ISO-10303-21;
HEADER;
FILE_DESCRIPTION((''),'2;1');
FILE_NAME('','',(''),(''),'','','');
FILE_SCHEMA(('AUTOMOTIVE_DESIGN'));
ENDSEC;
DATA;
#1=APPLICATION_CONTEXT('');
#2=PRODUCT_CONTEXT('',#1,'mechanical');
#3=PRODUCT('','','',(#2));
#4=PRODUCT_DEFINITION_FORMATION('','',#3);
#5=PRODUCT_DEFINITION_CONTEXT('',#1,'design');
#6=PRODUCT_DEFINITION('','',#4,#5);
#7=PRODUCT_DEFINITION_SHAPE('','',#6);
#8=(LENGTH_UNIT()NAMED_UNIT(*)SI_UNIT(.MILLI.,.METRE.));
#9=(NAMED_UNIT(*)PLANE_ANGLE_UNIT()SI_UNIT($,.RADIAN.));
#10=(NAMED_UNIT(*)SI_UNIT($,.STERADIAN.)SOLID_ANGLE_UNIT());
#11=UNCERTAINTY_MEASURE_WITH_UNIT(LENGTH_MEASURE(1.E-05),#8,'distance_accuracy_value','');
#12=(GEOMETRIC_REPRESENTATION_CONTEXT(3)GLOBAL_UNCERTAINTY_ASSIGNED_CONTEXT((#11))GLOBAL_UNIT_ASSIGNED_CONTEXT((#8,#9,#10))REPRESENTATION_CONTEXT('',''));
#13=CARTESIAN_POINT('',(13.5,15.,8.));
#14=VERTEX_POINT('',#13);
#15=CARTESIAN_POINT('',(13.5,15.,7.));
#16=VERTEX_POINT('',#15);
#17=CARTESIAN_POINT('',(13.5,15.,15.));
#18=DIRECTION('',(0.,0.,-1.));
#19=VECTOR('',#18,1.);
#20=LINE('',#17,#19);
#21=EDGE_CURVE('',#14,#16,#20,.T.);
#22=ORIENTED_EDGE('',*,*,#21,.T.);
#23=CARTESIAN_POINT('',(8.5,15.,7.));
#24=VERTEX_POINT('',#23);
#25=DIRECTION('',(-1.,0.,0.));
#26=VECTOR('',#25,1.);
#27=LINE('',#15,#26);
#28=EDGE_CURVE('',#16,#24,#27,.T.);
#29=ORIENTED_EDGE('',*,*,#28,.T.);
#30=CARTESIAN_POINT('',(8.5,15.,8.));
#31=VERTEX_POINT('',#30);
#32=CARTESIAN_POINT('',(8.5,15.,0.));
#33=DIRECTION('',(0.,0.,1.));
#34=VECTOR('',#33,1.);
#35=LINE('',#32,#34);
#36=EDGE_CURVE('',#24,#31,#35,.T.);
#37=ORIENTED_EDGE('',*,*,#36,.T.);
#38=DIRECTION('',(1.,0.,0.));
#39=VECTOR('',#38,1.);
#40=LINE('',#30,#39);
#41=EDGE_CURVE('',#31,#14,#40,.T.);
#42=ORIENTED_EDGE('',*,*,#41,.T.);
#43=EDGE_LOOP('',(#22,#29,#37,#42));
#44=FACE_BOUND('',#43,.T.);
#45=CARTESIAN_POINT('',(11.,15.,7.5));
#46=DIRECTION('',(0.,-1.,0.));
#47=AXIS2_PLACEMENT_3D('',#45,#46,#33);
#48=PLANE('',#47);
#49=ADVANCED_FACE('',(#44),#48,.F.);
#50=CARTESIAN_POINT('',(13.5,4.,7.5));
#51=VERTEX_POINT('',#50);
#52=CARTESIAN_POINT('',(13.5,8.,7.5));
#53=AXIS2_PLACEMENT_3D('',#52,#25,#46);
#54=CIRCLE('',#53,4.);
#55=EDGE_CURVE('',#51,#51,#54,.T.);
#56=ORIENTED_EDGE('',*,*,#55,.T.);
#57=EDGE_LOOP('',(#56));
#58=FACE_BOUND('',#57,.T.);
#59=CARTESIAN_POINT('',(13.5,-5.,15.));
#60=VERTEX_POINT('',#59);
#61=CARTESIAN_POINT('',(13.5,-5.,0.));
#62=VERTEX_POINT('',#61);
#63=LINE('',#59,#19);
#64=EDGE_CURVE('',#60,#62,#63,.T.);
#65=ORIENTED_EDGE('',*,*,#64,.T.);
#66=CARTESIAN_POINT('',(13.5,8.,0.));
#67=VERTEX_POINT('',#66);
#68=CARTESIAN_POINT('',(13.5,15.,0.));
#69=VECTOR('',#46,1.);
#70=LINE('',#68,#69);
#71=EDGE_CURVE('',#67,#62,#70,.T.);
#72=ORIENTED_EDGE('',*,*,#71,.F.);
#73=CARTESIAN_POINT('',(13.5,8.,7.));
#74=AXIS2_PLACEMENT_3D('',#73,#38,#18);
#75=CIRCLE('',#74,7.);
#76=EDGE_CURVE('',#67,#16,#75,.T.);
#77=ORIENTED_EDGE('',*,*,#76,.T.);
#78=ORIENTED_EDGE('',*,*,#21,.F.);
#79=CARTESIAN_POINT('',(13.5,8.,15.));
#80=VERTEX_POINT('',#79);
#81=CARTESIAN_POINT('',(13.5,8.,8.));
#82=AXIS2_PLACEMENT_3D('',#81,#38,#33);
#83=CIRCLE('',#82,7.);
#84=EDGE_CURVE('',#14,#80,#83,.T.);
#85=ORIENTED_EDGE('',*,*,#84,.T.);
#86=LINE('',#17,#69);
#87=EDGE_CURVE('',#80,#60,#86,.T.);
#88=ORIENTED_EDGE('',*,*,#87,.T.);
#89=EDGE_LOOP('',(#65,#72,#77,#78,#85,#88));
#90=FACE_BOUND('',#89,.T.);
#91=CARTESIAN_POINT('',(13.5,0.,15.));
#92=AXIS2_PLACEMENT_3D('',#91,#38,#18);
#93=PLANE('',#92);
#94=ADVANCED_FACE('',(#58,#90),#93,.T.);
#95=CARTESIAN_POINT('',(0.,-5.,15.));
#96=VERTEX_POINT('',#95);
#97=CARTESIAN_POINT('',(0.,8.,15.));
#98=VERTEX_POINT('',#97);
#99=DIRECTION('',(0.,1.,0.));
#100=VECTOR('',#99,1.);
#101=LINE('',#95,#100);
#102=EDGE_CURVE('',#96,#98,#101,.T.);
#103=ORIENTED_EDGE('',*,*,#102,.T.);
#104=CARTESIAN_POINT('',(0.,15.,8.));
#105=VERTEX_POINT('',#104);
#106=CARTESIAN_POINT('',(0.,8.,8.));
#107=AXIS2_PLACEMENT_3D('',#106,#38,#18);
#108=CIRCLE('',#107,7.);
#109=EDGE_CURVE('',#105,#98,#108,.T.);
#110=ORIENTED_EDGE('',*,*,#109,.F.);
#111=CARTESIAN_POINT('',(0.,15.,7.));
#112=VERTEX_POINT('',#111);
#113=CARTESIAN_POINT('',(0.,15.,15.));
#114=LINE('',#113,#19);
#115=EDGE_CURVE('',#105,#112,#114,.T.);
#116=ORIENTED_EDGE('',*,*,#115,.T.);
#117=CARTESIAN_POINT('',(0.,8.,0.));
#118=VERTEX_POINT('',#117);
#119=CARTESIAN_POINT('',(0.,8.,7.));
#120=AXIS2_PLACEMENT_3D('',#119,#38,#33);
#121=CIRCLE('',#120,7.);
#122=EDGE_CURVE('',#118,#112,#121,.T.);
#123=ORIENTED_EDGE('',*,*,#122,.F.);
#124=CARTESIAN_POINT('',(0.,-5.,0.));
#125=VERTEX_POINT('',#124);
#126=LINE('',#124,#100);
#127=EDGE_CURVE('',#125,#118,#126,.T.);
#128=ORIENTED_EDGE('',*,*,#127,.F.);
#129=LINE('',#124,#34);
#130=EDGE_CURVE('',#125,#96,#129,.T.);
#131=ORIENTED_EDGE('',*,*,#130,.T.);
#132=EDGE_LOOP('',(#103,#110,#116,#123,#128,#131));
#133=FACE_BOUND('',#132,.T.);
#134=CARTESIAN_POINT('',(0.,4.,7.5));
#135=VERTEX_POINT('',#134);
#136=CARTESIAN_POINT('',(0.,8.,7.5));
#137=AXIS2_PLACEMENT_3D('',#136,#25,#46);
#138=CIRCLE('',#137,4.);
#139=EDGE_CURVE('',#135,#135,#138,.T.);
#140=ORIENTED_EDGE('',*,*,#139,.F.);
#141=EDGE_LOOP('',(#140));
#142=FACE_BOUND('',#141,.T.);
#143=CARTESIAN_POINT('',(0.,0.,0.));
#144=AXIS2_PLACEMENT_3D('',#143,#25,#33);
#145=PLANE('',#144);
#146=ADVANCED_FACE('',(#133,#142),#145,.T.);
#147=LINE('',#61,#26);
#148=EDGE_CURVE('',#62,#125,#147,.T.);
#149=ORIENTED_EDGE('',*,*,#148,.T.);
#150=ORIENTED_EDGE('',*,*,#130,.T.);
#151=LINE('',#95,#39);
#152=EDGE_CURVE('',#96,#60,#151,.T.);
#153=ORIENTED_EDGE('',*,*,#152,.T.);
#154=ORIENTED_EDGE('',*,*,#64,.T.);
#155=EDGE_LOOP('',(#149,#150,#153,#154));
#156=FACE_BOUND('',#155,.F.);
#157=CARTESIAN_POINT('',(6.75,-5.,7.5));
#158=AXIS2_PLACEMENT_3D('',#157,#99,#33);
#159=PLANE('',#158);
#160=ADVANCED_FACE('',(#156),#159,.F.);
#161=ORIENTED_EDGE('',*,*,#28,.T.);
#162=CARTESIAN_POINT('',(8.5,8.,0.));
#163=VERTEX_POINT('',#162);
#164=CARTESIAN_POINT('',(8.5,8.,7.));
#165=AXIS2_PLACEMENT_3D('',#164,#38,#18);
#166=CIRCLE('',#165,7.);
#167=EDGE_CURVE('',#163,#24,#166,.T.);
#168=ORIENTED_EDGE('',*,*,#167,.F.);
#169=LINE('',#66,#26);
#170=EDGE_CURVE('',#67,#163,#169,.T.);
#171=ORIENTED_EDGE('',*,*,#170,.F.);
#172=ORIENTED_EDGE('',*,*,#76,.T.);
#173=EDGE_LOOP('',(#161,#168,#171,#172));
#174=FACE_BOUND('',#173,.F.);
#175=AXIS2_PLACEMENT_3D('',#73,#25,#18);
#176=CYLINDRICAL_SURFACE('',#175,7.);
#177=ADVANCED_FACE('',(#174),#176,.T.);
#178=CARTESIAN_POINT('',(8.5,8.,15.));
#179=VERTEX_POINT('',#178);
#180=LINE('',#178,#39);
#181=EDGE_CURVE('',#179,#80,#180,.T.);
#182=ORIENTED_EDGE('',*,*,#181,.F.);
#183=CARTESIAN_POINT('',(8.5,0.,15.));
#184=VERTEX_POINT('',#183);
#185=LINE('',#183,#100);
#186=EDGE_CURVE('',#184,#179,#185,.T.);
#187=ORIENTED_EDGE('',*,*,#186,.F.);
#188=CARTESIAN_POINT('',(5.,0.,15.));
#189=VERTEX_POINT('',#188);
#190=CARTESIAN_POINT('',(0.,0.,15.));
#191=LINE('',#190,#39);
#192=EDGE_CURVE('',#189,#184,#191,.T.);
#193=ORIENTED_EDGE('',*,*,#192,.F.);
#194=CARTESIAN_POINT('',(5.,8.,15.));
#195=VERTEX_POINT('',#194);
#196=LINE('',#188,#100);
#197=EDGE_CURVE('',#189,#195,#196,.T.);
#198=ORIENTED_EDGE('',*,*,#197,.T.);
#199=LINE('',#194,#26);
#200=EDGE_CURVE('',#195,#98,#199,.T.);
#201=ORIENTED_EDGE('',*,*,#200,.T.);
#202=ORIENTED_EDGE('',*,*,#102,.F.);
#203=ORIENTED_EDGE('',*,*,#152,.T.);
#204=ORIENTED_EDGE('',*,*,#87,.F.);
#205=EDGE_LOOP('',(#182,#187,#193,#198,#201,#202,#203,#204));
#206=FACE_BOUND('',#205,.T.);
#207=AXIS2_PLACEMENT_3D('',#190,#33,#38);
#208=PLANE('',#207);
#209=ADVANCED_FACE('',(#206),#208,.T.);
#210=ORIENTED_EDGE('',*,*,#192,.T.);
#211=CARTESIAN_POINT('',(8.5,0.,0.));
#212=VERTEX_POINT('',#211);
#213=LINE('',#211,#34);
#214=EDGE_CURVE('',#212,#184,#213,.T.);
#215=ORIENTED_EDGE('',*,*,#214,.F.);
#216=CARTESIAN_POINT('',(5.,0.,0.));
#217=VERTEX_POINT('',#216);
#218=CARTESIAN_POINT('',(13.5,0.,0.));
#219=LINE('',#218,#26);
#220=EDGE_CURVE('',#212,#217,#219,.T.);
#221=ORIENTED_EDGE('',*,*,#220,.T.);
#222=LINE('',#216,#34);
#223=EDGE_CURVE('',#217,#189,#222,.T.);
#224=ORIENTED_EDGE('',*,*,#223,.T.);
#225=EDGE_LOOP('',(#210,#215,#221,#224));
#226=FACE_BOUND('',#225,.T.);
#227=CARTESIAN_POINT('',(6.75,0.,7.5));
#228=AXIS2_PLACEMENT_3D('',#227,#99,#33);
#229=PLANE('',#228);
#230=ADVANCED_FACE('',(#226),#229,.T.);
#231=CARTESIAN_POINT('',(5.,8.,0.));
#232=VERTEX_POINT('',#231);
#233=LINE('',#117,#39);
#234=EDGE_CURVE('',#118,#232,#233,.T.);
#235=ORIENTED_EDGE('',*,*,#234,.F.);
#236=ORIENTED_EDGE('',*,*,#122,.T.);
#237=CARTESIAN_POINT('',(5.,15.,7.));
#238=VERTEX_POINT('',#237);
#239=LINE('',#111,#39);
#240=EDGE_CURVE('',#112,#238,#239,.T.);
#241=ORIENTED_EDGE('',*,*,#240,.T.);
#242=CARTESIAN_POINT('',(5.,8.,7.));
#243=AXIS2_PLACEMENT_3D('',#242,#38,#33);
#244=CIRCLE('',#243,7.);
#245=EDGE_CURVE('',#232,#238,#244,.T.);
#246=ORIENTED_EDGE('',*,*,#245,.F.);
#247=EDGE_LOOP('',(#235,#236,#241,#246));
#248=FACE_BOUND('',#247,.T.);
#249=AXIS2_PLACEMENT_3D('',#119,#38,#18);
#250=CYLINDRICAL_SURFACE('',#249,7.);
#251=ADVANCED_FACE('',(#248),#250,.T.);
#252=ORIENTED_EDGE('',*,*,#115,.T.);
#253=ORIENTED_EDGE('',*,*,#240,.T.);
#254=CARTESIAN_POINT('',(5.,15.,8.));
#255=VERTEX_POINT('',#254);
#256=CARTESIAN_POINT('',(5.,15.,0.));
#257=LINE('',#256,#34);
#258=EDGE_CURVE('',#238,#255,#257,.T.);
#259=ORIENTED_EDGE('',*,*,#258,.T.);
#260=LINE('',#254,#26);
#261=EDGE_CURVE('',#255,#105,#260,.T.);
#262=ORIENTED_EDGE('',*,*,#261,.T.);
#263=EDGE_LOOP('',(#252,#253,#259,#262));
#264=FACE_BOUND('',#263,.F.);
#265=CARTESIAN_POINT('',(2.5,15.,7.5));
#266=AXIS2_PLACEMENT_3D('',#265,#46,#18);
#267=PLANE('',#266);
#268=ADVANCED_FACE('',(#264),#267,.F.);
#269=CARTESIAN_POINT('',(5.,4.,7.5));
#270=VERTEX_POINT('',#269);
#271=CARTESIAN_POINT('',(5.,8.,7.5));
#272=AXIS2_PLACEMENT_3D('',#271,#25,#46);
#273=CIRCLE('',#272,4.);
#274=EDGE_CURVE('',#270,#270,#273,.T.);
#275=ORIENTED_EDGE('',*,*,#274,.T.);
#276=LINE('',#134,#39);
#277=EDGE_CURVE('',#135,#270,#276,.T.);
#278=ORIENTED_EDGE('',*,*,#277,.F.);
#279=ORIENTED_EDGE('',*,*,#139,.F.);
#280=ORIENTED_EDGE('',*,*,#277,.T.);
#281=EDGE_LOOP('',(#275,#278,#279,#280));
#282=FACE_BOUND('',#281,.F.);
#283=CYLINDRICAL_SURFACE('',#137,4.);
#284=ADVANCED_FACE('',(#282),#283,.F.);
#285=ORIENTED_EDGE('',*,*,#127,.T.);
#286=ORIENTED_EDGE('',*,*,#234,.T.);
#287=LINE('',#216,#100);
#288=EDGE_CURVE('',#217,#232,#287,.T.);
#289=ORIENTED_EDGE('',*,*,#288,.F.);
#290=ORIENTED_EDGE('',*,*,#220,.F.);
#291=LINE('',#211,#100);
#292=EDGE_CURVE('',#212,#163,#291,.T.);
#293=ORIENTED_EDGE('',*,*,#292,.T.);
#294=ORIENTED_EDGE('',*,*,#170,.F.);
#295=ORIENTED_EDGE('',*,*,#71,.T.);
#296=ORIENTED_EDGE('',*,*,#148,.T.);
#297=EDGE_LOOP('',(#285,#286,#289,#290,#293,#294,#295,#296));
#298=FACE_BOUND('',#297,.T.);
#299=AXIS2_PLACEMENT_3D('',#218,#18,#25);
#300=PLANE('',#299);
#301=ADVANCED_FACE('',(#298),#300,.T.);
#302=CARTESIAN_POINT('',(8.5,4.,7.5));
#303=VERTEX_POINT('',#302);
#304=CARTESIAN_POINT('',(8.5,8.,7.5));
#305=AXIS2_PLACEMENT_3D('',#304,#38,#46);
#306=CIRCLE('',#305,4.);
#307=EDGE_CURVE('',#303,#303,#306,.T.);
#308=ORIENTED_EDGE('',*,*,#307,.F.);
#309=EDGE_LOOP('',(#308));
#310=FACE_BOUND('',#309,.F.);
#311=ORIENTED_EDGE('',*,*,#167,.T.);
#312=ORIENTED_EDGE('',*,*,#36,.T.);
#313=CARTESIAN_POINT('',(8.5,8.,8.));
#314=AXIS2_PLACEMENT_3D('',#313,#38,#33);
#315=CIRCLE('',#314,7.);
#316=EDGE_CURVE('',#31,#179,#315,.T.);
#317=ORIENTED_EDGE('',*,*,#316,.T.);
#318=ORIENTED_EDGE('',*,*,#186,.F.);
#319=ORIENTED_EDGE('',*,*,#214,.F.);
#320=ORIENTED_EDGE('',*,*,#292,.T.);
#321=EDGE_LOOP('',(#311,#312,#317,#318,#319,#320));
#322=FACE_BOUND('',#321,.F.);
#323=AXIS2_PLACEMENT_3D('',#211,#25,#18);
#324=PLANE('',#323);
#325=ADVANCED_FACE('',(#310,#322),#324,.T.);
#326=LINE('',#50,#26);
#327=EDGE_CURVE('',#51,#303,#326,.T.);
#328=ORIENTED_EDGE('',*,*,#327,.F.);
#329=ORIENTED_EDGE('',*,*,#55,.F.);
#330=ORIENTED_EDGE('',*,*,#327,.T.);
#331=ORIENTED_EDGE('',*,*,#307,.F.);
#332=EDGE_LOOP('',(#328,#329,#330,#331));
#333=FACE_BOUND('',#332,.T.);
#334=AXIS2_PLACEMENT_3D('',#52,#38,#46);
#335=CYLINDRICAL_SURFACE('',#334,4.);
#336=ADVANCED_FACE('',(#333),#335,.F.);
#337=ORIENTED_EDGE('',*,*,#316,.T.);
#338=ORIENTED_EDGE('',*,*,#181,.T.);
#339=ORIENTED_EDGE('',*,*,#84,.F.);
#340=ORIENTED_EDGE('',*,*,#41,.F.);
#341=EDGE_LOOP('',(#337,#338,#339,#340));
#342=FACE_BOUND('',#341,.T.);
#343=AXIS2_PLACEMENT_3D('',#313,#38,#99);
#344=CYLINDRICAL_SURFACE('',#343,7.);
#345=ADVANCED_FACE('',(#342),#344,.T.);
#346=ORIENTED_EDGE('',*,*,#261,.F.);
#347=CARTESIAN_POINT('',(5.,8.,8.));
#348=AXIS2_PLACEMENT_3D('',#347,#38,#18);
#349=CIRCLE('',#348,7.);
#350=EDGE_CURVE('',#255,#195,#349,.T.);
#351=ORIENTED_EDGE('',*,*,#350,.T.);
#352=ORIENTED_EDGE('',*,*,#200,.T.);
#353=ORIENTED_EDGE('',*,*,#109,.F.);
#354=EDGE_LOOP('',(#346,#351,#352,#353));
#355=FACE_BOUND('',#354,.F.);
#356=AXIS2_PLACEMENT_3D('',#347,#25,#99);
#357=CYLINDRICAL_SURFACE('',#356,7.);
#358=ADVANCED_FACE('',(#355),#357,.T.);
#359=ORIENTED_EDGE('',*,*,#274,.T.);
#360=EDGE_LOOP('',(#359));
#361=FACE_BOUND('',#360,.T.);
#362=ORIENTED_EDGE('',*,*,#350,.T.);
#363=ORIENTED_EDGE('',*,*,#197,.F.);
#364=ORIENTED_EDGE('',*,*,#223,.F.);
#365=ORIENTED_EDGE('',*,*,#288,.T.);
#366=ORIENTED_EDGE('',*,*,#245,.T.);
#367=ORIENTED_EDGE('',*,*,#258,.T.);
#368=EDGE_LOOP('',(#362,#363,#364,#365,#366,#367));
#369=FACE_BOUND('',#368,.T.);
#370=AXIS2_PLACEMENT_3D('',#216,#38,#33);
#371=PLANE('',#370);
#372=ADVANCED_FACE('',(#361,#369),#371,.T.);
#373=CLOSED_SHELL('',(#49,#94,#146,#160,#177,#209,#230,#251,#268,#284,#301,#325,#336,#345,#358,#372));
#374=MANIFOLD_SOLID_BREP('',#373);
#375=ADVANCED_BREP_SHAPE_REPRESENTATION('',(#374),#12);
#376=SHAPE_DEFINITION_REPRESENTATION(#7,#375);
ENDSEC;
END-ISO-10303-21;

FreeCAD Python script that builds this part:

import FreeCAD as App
import Part
import Sketcher
Q = App.Units.Quantity


def edges_at(feature, points):
    """Names of the edges that pass closest to the given points."""
    edges = feature.Shape.Edges
    near = lambda p: min(range(len(edges)), key=lambda i: edges[i].distToShape(Part.Vertex(*p))[0])
    return sorted({f"Edge{near(p) + 1}" for p in points})

doc = App.newDocument("Part")
body = doc.addObject("PartDesign::Body", "Body")

# Sketch on XZ plane
sketch1 = doc.addObject("Sketcher::SketchObject", "Sketch")
body.addObject(sketch1)
sketch1.AttachmentSupport = (doc.XZ_Plane, [""])
sketch1.MapMode = "FlatFace"
sketch1.addGeometry([
    Part.LineSegment(App.Vector(0, 0, 0), App.Vector(14, 0, 0)),
    Part.LineSegment(App.Vector(14, 0, 0), App.Vector(14, 15, 0)),
    Part.LineSegment(App.Vector(14, 15, 0), App.Vector(0, 15, 0)),
    Part.LineSegment(App.Vector(0, 15, 0), App.Vector(0, 0, 0)),
], False)
sketch1.addConstraint([
    Sketcher.Constraint("Coincident", 0, 2, 1, 1),
    Sketcher.Constraint("Coincident", 1, 2, 2, 1),
    Sketcher.Constraint("Coincident", 2, 2, 3, 1),
    Sketcher.Constraint("Coincident", 3, 2, 0, 1),
    Sketcher.Constraint("Horizontal", 0),
    Sketcher.Constraint("Vertical", 1),
    Sketcher.Constraint("Horizontal", 2),
    Sketcher.Constraint("Vertical", 3),
    Sketcher.Constraint("Coincident", 3, 2, -1, 1),
    Sketcher.Constraint("DistanceY", 1, 1, 1, 2, Q("15 mm")),
    Sketcher.Constraint("DistanceX", 0, 1, 0, 2, Q("13.5 mm")),
])
pad1 = doc.addObject("PartDesign::Pad", "Pad")
body.addObject(pad1)
pad1.Profile = sketch1
pad1.Length = 5

# Sketch on XZ plane
sketch2 = doc.addObject("Sketcher::SketchObject", "Sketch001")
body.addObject(sketch2)
sketch2.AttachmentSupport = (doc.XZ_Plane, [""])
sketch2.MapMode = "FlatFace"
sketch2.addGeometry([
    Part.LineSegment(App.Vector(5, 15, 0), App.Vector(5, 0, 0)),
    Part.LineSegment(App.Vector(5, 0, 0), App.Vector(0, 0, 0)),
    Part.LineSegment(App.Vector(0, 0, 0), App.Vector(0, 15, 0)),
    Part.LineSegment(App.Vector(0, 15, 0), App.Vector(5, 15, 0)),
], False)
sketch2.addConstraint([
    Sketcher.Constraint("Coincident", 0, 2, 1, 1),
    Sketcher.Constraint("Coincident", 1, 2, 2, 1),
    Sketcher.Constraint("Coincident", 2, 2, 3, 1),
    Sketcher.Constraint("Coincident", 3, 2, 0, 1),
    Sketcher.Constraint("Vertical", 0),
    Sketcher.Constraint("Horizontal", 1),
    Sketcher.Constraint("Vertical", 2),
    Sketcher.Constraint("Horizontal", 3),
    Sketcher.Constraint("Coincident", 1, 2, -1, 1),
    Sketcher.Constraint("DistanceX", 1, 2, 1, 1, Q("5 mm")),
    Sketcher.Constraint("DistanceY", 0, 2, 0, 1, Q("15 mm")),
])
pad2 = doc.addObject("PartDesign::Pad", "Pad001")
body.addObject(pad2)
pad2.Profile = sketch2
pad2.Length = 15
pad2.Reversed = True

# Sketch on YZ plane
sketch3 = doc.addObject("Sketcher::SketchObject", "Sketch002")
body.addObject(sketch3)
sketch3.AttachmentSupport = (doc.YZ_Plane, [""])
sketch3.MapMode = "FlatFace"
sketch3.addGeometry(Part.Circle(App.Vector(8, 7.5, 0), App.Vector(0, 0, 1), 4), False)
sketch3.addConstraint([
    Sketcher.Constraint("Diameter", 0, Q("8 mm")),
    Sketcher.Constraint("DistanceX", -1, 1, 0, 3, Q("8 mm")),
    Sketcher.Constraint("DistanceY", -1, 1, 0, 3, Q("7.5 mm")),
])
pocket1 = doc.addObject("PartDesign::Pocket", "Pocket")
body.addObject(pocket1)
pocket1.Profile = sketch3
pocket1.Type = "ThroughAll"
pocket1.Reversed = True
doc.recompute()

fillet = doc.addObject("PartDesign::Fillet", "Fillet")
body.addObject(fillet)
fillet.Base = (pocket1, edges_at(pocket1, [(2.5, 15, 15), (2.5, 15, 0)]))
fillet.Radius = 7
doc.recompute()

datumplane = doc.addObject("PartDesign::Plane", "DatumPlane")
body.addObject(datumplane)
datumplane.AttachmentSupport = (doc.YZ_Plane, [""])
datumplane.MapMode = "FlatFace"
datumplane.AttachmentOffset = App.Placement(App.Vector(0, 0, 6.75), App.Rotation())
mirrored = doc.addObject("PartDesign::Mirrored", "Mirrored")
body.addObject(mirrored)
mirrored.Originals = [pad2, pocket1]
mirrored.MirrorPlane = (datumplane, [""])
body.Tip = mirrored
doc.recompute()

fillet2 = doc.addObject("PartDesign::Fillet", "Fillet001")
body.addObject(fillet2)
fillet2.Base = (mirrored, edges_at(mirrored, [(11, 15, 15), (11, 15, 0)]))
fillet2.Radius = 7

doc.recompute()
